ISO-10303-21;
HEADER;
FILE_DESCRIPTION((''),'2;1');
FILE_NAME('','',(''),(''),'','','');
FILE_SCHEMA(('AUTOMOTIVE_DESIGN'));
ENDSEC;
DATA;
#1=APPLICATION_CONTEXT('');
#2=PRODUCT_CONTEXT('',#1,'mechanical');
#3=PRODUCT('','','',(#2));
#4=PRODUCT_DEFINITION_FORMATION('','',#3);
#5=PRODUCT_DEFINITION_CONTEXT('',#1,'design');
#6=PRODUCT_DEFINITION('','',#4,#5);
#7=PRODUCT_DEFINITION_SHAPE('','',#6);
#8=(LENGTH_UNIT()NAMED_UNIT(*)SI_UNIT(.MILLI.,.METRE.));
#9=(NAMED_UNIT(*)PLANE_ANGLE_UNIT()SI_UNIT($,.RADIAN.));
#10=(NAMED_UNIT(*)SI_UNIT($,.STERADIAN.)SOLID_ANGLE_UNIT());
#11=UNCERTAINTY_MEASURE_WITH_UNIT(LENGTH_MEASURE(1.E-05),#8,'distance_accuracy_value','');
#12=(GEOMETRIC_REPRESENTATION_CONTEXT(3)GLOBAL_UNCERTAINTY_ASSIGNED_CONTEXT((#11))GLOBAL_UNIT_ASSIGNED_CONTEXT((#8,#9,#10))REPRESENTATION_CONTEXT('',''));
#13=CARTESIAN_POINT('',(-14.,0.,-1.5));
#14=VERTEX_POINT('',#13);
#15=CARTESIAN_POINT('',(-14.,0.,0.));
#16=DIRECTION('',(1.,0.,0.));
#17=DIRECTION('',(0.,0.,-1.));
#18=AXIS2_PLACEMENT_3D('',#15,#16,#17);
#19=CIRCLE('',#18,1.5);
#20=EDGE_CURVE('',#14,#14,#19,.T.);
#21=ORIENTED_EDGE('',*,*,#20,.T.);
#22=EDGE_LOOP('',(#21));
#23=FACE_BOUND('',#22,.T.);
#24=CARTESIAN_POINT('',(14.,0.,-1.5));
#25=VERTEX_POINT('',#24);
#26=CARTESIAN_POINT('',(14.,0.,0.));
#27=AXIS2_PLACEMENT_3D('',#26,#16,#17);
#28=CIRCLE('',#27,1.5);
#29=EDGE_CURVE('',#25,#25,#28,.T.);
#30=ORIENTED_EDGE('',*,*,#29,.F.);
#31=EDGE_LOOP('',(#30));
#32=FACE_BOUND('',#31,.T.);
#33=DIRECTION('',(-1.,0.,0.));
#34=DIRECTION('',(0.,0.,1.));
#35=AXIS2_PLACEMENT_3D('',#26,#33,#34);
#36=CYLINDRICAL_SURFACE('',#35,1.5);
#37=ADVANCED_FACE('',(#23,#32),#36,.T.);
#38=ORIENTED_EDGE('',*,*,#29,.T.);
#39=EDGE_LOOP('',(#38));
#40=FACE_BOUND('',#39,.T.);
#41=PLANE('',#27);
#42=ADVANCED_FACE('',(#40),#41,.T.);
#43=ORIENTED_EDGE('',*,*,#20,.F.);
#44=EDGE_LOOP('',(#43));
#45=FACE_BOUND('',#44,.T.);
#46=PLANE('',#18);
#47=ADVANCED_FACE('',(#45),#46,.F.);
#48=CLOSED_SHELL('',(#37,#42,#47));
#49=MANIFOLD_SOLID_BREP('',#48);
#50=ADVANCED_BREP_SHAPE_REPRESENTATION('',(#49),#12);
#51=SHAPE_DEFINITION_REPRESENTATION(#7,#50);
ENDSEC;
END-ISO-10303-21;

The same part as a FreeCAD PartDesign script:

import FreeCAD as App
import Part
import Sketcher
Q = App.Units.Quantity

doc = App.newDocument("Part")
body = doc.addObject("PartDesign::Body", "Body")

sketch1 = body.newObject("Sketcher::SketchObject", "Sketch")
sketch1.AttachmentSupport = (doc.getObject("YZ_Plane"), [""])
sketch1.MapMode = "FlatFace"
sketch1.addGeometry(Part.Circle(App.Vector(0, 0, 0), App.Vector(0, 0, 1), 1.5), False)
sketch1.addConstraint([
    Sketcher.Constraint("Coincident", 0, 3, -1, 1),
    Sketcher.Constraint("Diameter", 0, Q("3 mm")),
])
pad1 = body.newObject("PartDesign::Pad", "Pad")
pad1.Profile = sketch1
pad1.Length = 28
pad1.Midplane = True

doc.recompute()
